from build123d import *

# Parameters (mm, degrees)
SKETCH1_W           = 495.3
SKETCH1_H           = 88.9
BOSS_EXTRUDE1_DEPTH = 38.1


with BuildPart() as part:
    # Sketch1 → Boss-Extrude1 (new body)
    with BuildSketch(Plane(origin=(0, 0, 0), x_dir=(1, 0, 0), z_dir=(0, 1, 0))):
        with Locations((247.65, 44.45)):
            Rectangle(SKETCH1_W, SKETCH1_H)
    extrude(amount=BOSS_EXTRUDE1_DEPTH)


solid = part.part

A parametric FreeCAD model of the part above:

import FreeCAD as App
import Part
import Sketcher
Q = App.Units.Quantity

doc = App.newDocument("Part")
body = doc.addObject("PartDesign::Body", "Body")

sketch1 = doc.addObject("Sketcher::SketchObject", "Sketch")
body.addObject(sketch1)
sketch1.AttachmentSupport = (doc.XZ_Plane, [""])
sketch1.MapMode = "FlatFace"
sketch1.addGeometry(Part.LineSegment(App.Vector(0, -88.9, 0), App.Vector(0, 0, 0)), False)
sketch1.addGeometry(Part.LineSegment(App.Vector(0, 0, 0), App.Vector(495.3, 0, 0)), False)
sketch1.addGeometry(Part.LineSegment(App.Vector(495.3, 0, 0), App.Vector(495.3, -88.9, 0)), False)
sketch1.addGeometry(Part.LineSegment(App.Vector(495.3, -88.9, 0), App.Vector(0, -88.9, 0)), False)
sketch1.addConstraint(Sketcher.Constraint("Coincident", 0, 2, 1, 1))
sketch1.addConstraint(Sketcher.Constraint("Coincident", 1, 2, 2, 1))
sketch1.addConstraint(Sketcher.Constraint("Coincident", 2, 2, 3, 1))
sketch1.addConstraint(Sketcher.Constraint("Coincident", 3, 2, 0, 1))
sketch1.addConstraint(Sketcher.Constraint("Vertical", 0))
sketch1.addConstraint(Sketcher.Constraint("Horizontal", 1))
sketch1.addConstraint(Sketcher.Constraint("Vertical", 2))
sketch1.addConstraint(Sketcher.Constraint("Horizontal", 3))
sketch1.addConstraint(Sketcher.Constraint("Coincident", 0, 2, -1, 1))
sketch1.addConstraint(Sketcher.Constraint("DistanceX", 1, 1, 1, 2, Q("19.5 in")))
sketch1.addConstraint(Sketcher.Constraint("DistanceY", 0, 1, 0, 2, Q("3.5 in")))
pad1 = doc.addObject("PartDesign::Pad", "Pad")
body.addObject(pad1)
pad1.Profile = sketch1
pad1.Length = Q("1.5 in")
pad1.Reversed = True

doc.recompute()
